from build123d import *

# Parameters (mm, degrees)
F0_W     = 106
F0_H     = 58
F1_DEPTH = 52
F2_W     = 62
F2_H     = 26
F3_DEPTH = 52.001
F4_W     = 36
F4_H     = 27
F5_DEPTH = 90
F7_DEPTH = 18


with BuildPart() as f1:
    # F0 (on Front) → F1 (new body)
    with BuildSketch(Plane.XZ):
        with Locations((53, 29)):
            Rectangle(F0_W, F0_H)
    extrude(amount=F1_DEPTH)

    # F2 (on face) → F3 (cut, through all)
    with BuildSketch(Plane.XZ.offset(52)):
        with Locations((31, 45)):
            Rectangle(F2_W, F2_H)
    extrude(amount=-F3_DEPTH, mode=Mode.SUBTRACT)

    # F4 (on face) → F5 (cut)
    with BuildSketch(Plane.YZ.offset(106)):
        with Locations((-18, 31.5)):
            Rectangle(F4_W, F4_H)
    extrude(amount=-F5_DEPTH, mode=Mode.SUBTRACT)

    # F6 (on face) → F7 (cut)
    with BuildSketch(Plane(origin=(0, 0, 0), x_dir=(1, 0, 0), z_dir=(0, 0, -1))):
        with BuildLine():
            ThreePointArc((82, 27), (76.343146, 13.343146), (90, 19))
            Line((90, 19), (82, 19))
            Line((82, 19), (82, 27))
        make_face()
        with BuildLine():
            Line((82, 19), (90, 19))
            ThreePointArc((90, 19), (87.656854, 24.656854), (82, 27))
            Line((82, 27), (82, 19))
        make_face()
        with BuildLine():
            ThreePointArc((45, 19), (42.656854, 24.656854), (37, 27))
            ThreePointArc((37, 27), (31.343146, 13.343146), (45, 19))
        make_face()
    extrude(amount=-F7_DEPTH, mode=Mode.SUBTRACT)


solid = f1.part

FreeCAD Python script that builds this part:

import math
import FreeCAD as App
import Part
import Sketcher

V = App.Vector
Q = App.Units.Quantity


def add_polygon(sketch, points):
    """Adds a closed chain of lines whose ends are joined by coincident constraints."""
    first, n = sketch.GeometryCount, len(points)
    for a, b in zip(points, points[1:] + points[:1]):
        sketch.addGeometry(Part.LineSegment(App.Vector(*a, 0), App.Vector(*b, 0)), False)
    for i in range(n):
        sketch.addConstraint(Sketcher.Constraint("Coincident", first + i, 2, first + (i + 1) % n, 1))

doc = App.newDocument("Part")
body = doc.addObject("PartDesign::Body", "Body")

# Sketch on XZ plane
sketch1 = doc.addObject("Sketcher::SketchObject", "Sketch")
body.addObject(sketch1)
sketch1.AttachmentSupport = (doc.XZ_Plane, [""])
sketch1.MapMode = "FlatFace"
add_polygon(sketch1, [(0, 58), (0, 0), (106, 0), (106, 58)])  # lines 0-3
sketch1.addConstraint([
    Sketcher.Constraint("Vertical", 0),
    Sketcher.Constraint("Horizontal", 1),
    Sketcher.Constraint("Vertical", 2),
    Sketcher.Constraint("Horizontal", 3),
    Sketcher.Constraint("Coincident", 0, 2, -1, 1),
    Sketcher.Constraint("DistanceX", 1, 1, 1, 2, Q("106 mm")),
    Sketcher.Constraint("DistanceY", 0, 2, 0, 1, Q("58 mm")),
])
pad1 = doc.addObject("PartDesign::Pad", "Pad")
body.addObject(pad1)
pad1.Profile = sketch1
pad1.Length = 52

# Sketch on XZ plane
sketch2 = doc.addObject("Sketcher::SketchObject", "Sketch001")
body.addObject(sketch2)
sketch2.AttachmentSupport = (doc.XZ_Plane, [""])
sketch2.MapMode = "FlatFace"
sketch2.AttachmentOffset = App.Placement(V(0, 0, 52), App.Rotation())
add_polygon(sketch2, [(0, 58), (0, 32), (62, 32), (62, 58)])  # lines 0-3
sketch2.addConstraint([
    Sketcher.Constraint("Vertical", 0),
    Sketcher.Constraint("Horizontal", 1),
    Sketcher.Constraint("Vertical", 2),
    Sketcher.Constraint("Horizontal", 3),
    Sketcher.Constraint("PointOnObject", 0, 2, -2),
    Sketcher.Constraint("DistanceX", 1, 1, 1, 2, Q("62 mm")),
    Sketcher.Constraint("DistanceY", 0, 2, 0, 1, Q("26 mm")),
    Sketcher.Constraint("DistanceY", -1, 1, 0, 2, Q("32 mm")),
])
pocket1 = doc.addObject("PartDesign::Pocket", "Pocket")
body.addObject(pocket1)
pocket1.Profile = sketch2
pocket1.Type = "ThroughAll"

# Sketch on YZ plane
sketch3 = doc.addObject("Sketcher::SketchObject", "Sketch002")
body.addObject(sketch3)
sketch3.AttachmentSupport = (doc.YZ_Plane, [""])
sketch3.MapMode = "FlatFace"
sketch3.AttachmentOffset = App.Placement(V(0, 0, 106), App.Rotation())
add_polygon(sketch3, [(-36, 45), (-36, 18), (0, 18), (0, 45)])  # lines 0-3
sketch3.addConstraint([
    Sketcher.Constraint("Vertical", 0),
    Sketcher.Constraint("Horizontal", 1),
    Sketcher.Constraint("Vertical", 2),
    Sketcher.Constraint("Horizontal", 3),
    Sketcher.Constraint("PointOnObject", 1, 2, -2),
    Sketcher.Constraint("DistanceX", 1, 1, 1, 2, Q("36 mm")),
    Sketcher.Constraint("DistanceY", 0, 2, 0, 1, Q("27 mm")),
    Sketcher.Constraint("DistanceY", -1, 1, 0, 2, Q("18 mm")),
])
pocket2 = doc.addObject("PartDesign::Pocket", "Pocket001")
body.addObject(pocket2)
pocket2.Profile = sketch3
pocket2.Length = 90

# Sketch on XY plane
sketch4 = doc.addObject("Sketcher::SketchObject", "Sketch003")
body.addObject(sketch4)
sketch4.AttachmentSupport = (doc.XY_Plane, [""])
sketch4.MapMode = "FlatFace"
sketch4.addGeometry([
    Part.ArcOfCircle(Part.Circle(V(82, -19, 0), V(0, 0, 1), 8), math.radians(0), math.radians(270)),
    Part.ArcOfCircle(Part.Circle(V(82, -19, 0), V(0, 0, 1), 8), math.radians(-90), math.radians(0)),
    Part.ArcOfCircle(Part.Circle(V(37, -19, 0), V(0, 0, 1), 8), math.radians(-90), math.radians(0)),
    Part.ArcOfCircle(Part.Circle(V(37, -19, 0), V(0, 0, 1), 8), math.radians(0), math.radians(270)),
], False)
sketch4.addConstraint([
    Sketcher.Constraint("Tangent", 0, 1, 1, 2),
    Sketcher.Constraint("Coincident", 1, 1, 0, 2),
    Sketcher.Constraint("Tangent", 2, 1, 3, 2),
    Sketcher.Constraint("Coincident", 3, 1, 2, 2),
    Sketcher.Constraint("Equal", 1, 2),
    Sketcher.Constraint("Horizontal", 1, 3, 2, 3),
    Sketcher.Constraint("Horizontal", 3, 3, 0, 1),
    Sketcher.Constraint("Horizontal", 0, 1, 3, 1),
    Sketcher.Constraint("Vertical", 0, 3, 1, 1),
    Sketcher.Constraint("Vertical", 3, 3, 2, 1),
    Sketcher.Constraint("Radius", 0, Q("8 mm")),
    Sketcher.Constraint("DistanceX", -1, 1, 0, 3, Q("82 mm")),
    Sketcher.Constraint("DistanceY", 0, 3, -1, 1, Q("19 mm")),
    Sketcher.Constraint("DistanceX", -1, 1, 2, 3, Q("36.999999 mm")),
])
pocket3 = doc.addObject("PartDesign::Pocket", "Pocket002")
body.addObject(pocket3)
pocket3.Profile = sketch4
pocket3.Length = 18
pocket3.Reversed = True

doc.recompute()
